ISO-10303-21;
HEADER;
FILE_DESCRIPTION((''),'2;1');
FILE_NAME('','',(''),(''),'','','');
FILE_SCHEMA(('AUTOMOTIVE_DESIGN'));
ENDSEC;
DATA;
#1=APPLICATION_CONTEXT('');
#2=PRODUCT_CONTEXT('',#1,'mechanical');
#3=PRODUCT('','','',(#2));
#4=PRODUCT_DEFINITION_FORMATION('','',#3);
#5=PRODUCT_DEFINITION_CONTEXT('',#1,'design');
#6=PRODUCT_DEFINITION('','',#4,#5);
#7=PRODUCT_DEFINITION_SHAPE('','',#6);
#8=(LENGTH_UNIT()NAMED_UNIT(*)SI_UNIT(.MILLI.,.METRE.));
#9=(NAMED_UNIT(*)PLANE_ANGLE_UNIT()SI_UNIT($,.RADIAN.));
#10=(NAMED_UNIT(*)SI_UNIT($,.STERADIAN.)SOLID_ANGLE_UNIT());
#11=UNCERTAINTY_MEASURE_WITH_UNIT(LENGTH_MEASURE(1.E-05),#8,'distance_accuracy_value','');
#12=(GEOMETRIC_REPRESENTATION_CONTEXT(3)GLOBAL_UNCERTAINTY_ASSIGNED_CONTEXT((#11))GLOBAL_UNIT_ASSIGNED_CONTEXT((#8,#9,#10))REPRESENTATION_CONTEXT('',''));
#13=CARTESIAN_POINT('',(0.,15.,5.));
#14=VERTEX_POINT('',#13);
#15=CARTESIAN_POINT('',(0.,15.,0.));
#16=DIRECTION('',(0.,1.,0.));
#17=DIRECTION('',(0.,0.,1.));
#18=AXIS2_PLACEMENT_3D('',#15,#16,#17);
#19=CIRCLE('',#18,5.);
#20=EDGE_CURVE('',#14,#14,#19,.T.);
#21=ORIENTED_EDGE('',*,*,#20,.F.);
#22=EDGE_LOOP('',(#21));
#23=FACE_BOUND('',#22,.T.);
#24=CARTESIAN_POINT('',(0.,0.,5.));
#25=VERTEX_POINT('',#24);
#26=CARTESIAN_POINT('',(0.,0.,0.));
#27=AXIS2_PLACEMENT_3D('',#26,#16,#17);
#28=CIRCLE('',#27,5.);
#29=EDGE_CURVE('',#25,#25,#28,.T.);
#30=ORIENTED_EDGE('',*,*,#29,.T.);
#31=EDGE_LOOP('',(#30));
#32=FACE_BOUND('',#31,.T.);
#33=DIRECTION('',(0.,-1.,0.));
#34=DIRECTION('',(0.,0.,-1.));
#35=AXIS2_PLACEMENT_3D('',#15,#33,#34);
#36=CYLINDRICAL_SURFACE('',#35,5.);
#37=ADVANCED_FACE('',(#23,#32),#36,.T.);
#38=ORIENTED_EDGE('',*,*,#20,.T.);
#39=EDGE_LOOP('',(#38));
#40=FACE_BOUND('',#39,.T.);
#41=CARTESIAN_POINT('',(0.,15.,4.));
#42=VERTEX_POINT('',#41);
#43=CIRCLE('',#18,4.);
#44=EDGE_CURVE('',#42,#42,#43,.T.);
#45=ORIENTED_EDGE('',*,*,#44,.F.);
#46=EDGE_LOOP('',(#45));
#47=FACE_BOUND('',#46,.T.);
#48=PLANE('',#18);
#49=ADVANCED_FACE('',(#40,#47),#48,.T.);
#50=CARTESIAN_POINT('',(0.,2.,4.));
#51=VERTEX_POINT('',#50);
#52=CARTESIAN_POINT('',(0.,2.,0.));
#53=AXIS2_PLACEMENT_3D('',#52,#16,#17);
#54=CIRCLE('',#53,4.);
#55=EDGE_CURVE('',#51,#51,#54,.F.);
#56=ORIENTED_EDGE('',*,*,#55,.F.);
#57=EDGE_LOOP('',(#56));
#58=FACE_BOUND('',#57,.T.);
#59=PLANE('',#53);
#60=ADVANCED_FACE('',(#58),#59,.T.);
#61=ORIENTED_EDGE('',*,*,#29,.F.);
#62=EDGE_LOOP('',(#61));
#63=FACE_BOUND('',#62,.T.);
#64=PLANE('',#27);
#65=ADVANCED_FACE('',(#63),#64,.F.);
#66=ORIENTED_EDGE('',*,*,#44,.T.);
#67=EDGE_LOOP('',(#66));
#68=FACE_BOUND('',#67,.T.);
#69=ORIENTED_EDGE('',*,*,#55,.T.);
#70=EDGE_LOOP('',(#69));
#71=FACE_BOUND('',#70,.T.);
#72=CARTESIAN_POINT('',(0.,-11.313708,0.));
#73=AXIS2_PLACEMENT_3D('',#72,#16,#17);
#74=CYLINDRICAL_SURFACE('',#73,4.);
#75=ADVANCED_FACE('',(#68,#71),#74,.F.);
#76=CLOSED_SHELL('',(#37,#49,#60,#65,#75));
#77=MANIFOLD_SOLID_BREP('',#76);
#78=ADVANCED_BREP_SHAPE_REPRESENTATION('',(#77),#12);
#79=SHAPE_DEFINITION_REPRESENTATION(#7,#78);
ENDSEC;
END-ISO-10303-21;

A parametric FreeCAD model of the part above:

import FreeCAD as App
import Part
import Sketcher
from FreeCAD import Vector
Q = App.Units.Quantity

doc = App.newDocument("Part")
body = doc.addObject("PartDesign::Body", "Body")

# Sketch on XZ plane
sketch1 = doc.addObject("Sketcher::SketchObject", "Sketch")
body.addObject(sketch1)
sketch1.AttachmentSupport = (doc.XZ_Plane, [""])
sketch1.MapMode = "FlatFace"
sketch1.addGeometry(Part.Circle(Vector(0, 0, 0), Vector(0, 0, 1), 5), False)
sketch1.addConstraint(Sketcher.Constraint("Coincident", 0, 3, -1, 1))
sketch1.addConstraint(Sketcher.Constraint("Diameter", 0, Q("10 mm")))
pad1 = doc.addObject("PartDesign::Pad", "Pad")
body.addObject(pad1)
pad1.Profile = sketch1
pad1.Length = 15
pad1.Reversed = True

# Sketch on XZ plane
sketch2 = doc.addObject("Sketcher::SketchObject", "Sketch001")
body.addObject(sketch2)
sketch2.AttachmentSupport = (doc.XZ_Plane, [""])
sketch2.MapMode = "FlatFace"
sketch2.AttachmentOffset = App.Placement(Vector(0, 0, -15), App.Rotation())
sketch2.addGeometry(Part.Circle(Vector(0, 0, 0), Vector(0, 0, 1), 4), False)
sketch2.addConstraint(Sketcher.Constraint("Coincident", 0, 3, -1, 1))
sketch2.addConstraint(Sketcher.Constraint("Diameter", 0, Q("8 mm")))
pocket1 = doc.addObject("PartDesign::Pocket", "Pocket")
body.addObject(pocket1)
pocket1.Profile = sketch2
pocket1.Length = 13
pocket1.Reversed = True

doc.recompute()
